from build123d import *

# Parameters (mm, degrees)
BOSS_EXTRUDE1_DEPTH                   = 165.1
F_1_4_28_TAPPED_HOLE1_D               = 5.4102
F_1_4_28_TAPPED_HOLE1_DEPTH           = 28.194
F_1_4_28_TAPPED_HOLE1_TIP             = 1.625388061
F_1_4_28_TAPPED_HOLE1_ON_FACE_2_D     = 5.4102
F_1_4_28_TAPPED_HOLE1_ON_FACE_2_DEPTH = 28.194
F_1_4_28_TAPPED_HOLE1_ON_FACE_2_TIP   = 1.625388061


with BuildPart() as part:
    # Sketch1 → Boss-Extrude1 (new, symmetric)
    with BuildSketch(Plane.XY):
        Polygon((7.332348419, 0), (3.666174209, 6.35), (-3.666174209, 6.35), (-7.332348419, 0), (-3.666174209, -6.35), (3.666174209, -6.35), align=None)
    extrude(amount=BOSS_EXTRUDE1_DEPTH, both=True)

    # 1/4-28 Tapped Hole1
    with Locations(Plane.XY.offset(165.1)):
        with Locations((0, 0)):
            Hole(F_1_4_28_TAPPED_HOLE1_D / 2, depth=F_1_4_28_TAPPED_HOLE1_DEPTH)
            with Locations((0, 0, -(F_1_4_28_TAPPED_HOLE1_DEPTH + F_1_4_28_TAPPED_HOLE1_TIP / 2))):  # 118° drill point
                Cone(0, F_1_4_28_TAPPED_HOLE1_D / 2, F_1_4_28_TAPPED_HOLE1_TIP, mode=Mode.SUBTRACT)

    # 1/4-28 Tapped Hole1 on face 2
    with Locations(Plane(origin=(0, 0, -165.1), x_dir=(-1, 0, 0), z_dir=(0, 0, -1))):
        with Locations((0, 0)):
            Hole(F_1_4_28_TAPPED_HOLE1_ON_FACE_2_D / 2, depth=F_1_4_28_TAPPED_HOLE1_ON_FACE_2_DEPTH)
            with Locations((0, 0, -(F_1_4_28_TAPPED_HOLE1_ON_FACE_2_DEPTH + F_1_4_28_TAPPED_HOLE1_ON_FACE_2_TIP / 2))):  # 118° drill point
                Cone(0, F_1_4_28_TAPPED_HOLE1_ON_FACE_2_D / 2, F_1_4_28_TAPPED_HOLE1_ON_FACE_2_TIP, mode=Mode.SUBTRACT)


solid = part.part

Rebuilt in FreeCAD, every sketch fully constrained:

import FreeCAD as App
import Part
import Sketcher

V = App.Vector
Q = App.Units.Quantity


def add_polygon(sketch, points):
    """Adds a closed chain of lines whose ends are joined by coincident constraints."""
    first, n = sketch.GeometryCount, len(points)
    for a, b in zip(points, points[1:] + points[:1]):
        sketch.addGeometry(Part.LineSegment(App.Vector(*a, 0), App.Vector(*b, 0)), False)
    for i in range(n):
        sketch.addConstraint(Sketcher.Constraint("Coincident", first + i, 2, first + (i + 1) % n, 1))

doc = App.newDocument("Part")
body = doc.addObject("PartDesign::Body", "Body")

# Sketch on XY plane
sketch1 = body.newObject("Sketcher::SketchObject", "Sketch")
sketch1.AttachmentSupport = (doc.getObject("XY_Plane"), [""])
sketch1.MapMode = "FlatFace"
add_polygon(sketch1, [(7, 0), (4, 6), (-4, 6), (-7, 0), (-4, -6), (4, -6)])  # lines 0-5
sketch1.addConstraint([
    Sketcher.Constraint("Horizontal", 1),
    Sketcher.Constraint("Horizontal", 4),
    Sketcher.Constraint("Symmetric", 0, 2, 3, 2, -1, 1),
    Sketcher.Constraint("Symmetric", 2, 2, 5, 2, -1, 1),
    Sketcher.Constraint("PointOnObject", 2, 2, -1),
    Sketcher.Constraint("Parallel", 2, 5),
    Sketcher.Constraint("Vertical", 1, 2, 3, 2),
    Sketcher.Constraint("Angle", 0, Q("120 deg")),
    Sketcher.Constraint("DistanceY", 3, 2, 1, 2, Q("0.5 in")),
    Sketcher.Constraint("DistanceX", 1, 2, 1, 1, Q("7.332348 mm")),
])
pad1 = body.newObject("PartDesign::Pad", "Pad")
pad1.Profile = sketch1
pad1.Length = Q("13 in")
pad1.Midplane = True

# Sketch on XY plane
sketch2 = body.newObject("Sketcher::SketchObject", "Sketch001")
sketch2.AttachmentSupport = (doc.getObject("XY_Plane"), [""])
sketch2.MapMode = "FlatFace"
sketch2.AttachmentOffset = App.Placement(V(0, 0, 6.5 * 25.4), App.Rotation())
sketch2.addGeometry(Part.Circle(V(0, 0, 0), V(0, 0, 1), 2.7), False)
sketch2.addConstraint([
    Sketcher.Constraint("Coincident", 0, 3, -1, 1),
    Sketcher.Constraint("Diameter", 0, Q("0.213 in")),
])
doc.recompute()
hole = body.newObject("PartDesign::Hole", "Hole")
hole.Profile = sketch2
hole.ThreadType = "None"
hole.Diameter = Q("0.213 in")
hole.DepthType = "Dimension"
hole.Depth = Q("1.11 in")
hole.DrillPoint = "Angled"
hole.DrillPointAngle = 118

# Sketch on XY plane
sketch3 = body.newObject("Sketcher::SketchObject", "Sketch002")
sketch3.AttachmentSupport = (doc.getObject("XY_Plane"), [""])
sketch3.MapMode = "FlatFace"
sketch3.AttachmentOffset = App.Placement(V(0, 0, -6.5 * 25.4), App.Rotation())
sketch3.addGeometry(Part.Circle(V(0, 0, 0), V(0, 0, 1), 2.7), False)
sketch3.addConstraint([
    Sketcher.Constraint("Coincident", 0, 3, -1, 1),
    Sketcher.Constraint("Diameter", 0, Q("0.213 in")),
])
doc.recompute()
hole2 = body.newObject("PartDesign::Hole", "Hole001")
hole2.Profile = sketch3
hole2.ThreadType = "None"
hole2.Diameter = Q("0.213 in")
hole2.DepthType = "Dimension"
hole2.Depth = Q("1.11 in")
hole2.DrillPoint = "Angled"
hole2.DrillPointAngle = 118
hole2.Reversed = True

doc.recompute()
